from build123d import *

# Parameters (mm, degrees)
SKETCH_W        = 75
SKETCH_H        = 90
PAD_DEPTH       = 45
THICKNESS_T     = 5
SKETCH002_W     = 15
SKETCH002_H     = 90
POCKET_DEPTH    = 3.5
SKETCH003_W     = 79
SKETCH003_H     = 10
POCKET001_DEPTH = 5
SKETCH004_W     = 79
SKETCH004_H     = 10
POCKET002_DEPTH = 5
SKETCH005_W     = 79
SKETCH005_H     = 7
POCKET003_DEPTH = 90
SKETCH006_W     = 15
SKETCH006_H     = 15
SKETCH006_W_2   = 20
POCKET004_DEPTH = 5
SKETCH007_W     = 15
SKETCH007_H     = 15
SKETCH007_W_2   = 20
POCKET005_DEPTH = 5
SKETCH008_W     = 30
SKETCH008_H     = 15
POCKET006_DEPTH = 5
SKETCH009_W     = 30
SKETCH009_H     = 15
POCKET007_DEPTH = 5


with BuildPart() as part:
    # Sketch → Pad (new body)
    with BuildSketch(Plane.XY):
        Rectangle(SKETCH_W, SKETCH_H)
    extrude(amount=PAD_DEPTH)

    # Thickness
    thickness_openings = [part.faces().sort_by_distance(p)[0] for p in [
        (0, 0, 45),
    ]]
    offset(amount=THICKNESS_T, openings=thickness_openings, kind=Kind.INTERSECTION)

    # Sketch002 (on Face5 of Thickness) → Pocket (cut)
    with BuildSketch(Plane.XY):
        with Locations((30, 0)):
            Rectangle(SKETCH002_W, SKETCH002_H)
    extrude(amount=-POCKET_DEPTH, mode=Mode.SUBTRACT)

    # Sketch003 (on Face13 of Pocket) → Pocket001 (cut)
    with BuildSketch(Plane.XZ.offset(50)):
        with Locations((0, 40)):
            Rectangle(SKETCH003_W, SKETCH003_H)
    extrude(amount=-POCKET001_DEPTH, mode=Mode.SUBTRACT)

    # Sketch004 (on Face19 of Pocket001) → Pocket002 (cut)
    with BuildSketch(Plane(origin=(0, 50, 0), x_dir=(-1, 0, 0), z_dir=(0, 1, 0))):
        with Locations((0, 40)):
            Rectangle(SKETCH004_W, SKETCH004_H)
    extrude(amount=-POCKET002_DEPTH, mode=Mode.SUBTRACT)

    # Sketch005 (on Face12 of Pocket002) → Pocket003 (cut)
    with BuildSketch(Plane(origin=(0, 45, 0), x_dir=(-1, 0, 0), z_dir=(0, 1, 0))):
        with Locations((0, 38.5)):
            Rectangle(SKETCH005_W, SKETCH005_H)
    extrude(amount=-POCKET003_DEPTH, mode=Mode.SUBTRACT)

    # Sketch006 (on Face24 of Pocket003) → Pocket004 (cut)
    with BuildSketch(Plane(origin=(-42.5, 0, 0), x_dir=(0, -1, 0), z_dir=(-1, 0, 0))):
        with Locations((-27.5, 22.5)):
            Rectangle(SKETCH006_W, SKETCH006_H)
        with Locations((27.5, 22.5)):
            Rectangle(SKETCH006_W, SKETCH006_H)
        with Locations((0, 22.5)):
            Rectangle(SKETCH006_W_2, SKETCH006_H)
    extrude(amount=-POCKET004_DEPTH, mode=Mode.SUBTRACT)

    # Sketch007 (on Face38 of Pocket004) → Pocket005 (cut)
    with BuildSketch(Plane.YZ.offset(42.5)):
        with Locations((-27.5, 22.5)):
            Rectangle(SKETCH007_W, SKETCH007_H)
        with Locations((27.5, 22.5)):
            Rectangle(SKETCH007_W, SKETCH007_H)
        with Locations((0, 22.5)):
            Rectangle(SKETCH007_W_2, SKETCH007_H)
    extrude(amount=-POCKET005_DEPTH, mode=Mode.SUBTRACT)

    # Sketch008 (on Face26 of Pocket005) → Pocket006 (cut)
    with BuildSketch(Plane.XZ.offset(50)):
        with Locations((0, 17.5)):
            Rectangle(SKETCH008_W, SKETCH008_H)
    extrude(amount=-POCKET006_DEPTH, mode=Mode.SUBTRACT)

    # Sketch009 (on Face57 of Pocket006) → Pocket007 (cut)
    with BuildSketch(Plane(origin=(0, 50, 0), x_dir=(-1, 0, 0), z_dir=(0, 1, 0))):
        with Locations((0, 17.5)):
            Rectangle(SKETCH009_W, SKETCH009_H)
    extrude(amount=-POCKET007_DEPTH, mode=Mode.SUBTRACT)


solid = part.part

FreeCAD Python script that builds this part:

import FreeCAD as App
import Part
import Sketcher

V = App.Vector


def faces_at(feature, points):
    """Names of the faces that lie closest to the given points."""
    faces = feature.Shape.Faces
    near = lambda p: min(range(len(faces)), key=lambda i: faces[i].distToShape(Part.Vertex(*p))[0])
    return sorted({f"Face{near(p) + 1}" for p in points})

doc = App.newDocument("Part")
params = doc.addObject("Spreadsheet::Sheet", "Params")
for row, (alias, value) in enumerate([
    ("sketch1_width", "75 mm"),
    ("sketch1_height", "90 mm"),
    ("pad1_length", "45 mm"),
    ("thickness_wall", "5 mm"),
    ("sketch2_width", "15 mm"),
    ("sketch2_height", "90 mm"),
    ("pocket1_length", "3.5 mm"),
    ("sketch3_width", "79 mm"),
    ("sketch3_height", "10 mm"),
    ("pocket2_length", "5 mm"),
    ("sketch4_width", "79 mm"),
    ("sketch4_height", "10 mm"),
    ("pocket3_length", "5 mm"),
    ("sketch5_width", "79 mm"),
    ("sketch5_height", "7 mm"),
    ("pocket4_length", "90 mm"),
    ("sketch6_width", "15 mm"),
    ("sketch6_width2", "20 mm"),
    ("pocket5_length", "5 mm"),
    ("sketch7_width", "15 mm"),
    ("sketch7_width2", "20 mm"),
    ("pocket6_length", "5 mm"),
    ("sketch8_width", "30 mm"),
    ("sketch8_height", "15 mm"),
    ("pocket7_length", "5 mm"),
    ("sketch9_width", "30 mm"),
    ("sketch9_height", "15 mm"),
    ("pocket8_length", "5 mm"),
], start=1):
    params.set(f"A{row}", alias)
    params.set(f"B{row}", "=" + value)
    params.setAlias(f"B{row}", alias)

body = doc.addObject("PartDesign::Body", "Body")

# Sketch on XY plane
sketch1 = body.newObject("Sketcher::SketchObject", "Sketch")
sketch1.AttachmentSupport = (doc.getObject("XY_Plane"), [""])
sketch1.MapMode = "FlatFace"
sketch1.addGeometry([
    Part.LineSegment(V(-37.5, 45, 0), V(-37.5, -45, 0)),
    Part.LineSegment(V(-37.5, -45, 0), V(37.5, -45, 0)),
    Part.LineSegment(V(37.5, -45, 0), V(37.5, 45, 0)),
    Part.LineSegment(V(37.5, 45, 0), V(-37.5, 45, 0)),
], False)
sketch1.addConstraint([
    Sketcher.Constraint("Coincident", 0, 2, 1, 1),
    Sketcher.Constraint("Coincident", 1, 2, 2, 1),
    Sketcher.Constraint("Coincident", 2, 2, 3, 1),
    Sketcher.Constraint("Coincident", 3, 2, 0, 1),
    Sketcher.Constraint("Vertical", 0),
    Sketcher.Constraint("Horizontal", 1),
    Sketcher.Constraint("Vertical", 2),
    Sketcher.Constraint("Horizontal", 3),
    Sketcher.Constraint("Symmetric", 0, 2, 2, 2, -1, 1),
    Sketcher.Constraint("DistanceX", 1, 1, 1, 2, 75.0),
    Sketcher.Constraint("DistanceY", 0, 2, 0, 1, 90.0),
])
sketch1.setExpression("Constraints[9]", "Params.sketch1_width")
sketch1.setExpression("Constraints[10]", "Params.sketch1_height")
pad1 = body.newObject("PartDesign::Pad", "Pad")
pad1.Profile = sketch1
pad1.setExpression("Length", "Params.pad1_length")
doc.recompute()

thickness = body.newObject("PartDesign::Thickness", "Thickness")
thickness.Base = (pad1, faces_at(pad1, [(0, 0, 45)]))
thickness.setExpression("Value", "Params.thickness_wall")
thickness.Reversed = False
thickness.Join = "Intersection"

# Sketch on XY plane
sketch2 = body.newObject("Sketcher::SketchObject", "Sketch001")
sketch2.AttachmentSupport = (doc.getObject("XY_Plane"), [""])
sketch2.MapMode = "FlatFace"
sketch2.addGeometry([
    Part.LineSegment(V(22.5, 45, 0), V(22.5, -45, 0)),
    Part.LineSegment(V(22.5, -45, 0), V(37.5, -45, 0)),
    Part.LineSegment(V(37.5, -45, 0), V(37.5, 45, 0)),
    Part.LineSegment(V(37.5, 45, 0), V(22.5, 45, 0)),
], False)
sketch2.addConstraint([
    Sketcher.Constraint("Coincident", 0, 2, 1, 1),
    Sketcher.Constraint("Coincident", 1, 2, 2, 1),
    Sketcher.Constraint("Coincident", 2, 2, 3, 1),
    Sketcher.Constraint("Coincident", 3, 2, 0, 1),
    Sketcher.Constraint("Vertical", 0),
    Sketcher.Constraint("Horizontal", 1),
    Sketcher.Constraint("Vertical", 2),
    Sketcher.Constraint("Horizontal", 3),
    Sketcher.Constraint("DistanceX", 1, 1, 1, 2, 15.0),
    Sketcher.Constraint("DistanceY", 0, 2, 0, 1, 90.0),
    Sketcher.Constraint("DistanceY", 0, 2, -1, 1, 45.0),
    Sketcher.Constraint("DistanceX", -1, 1, 0, 2, 22.5),
])
sketch2.setExpression("Constraints[8]", "Params.sketch2_width")
sketch2.setExpression("Constraints[9]", "Params.sketch2_height")
pocket1 = body.newObject("PartDesign::Pocket", "Pocket")
pocket1.Profile = sketch2
pocket1.setExpression("Length", "Params.pocket1_length")

# Sketch on XZ plane
sketch3 = body.newObject("Sketcher::SketchObject", "Sketch002")
sketch3.AttachmentSupport = (doc.getObject("XZ_Plane"), [""])
sketch3.MapMode = "FlatFace"
sketch3.AttachmentOffset = App.Placement(V(0, 0, 50), App.Rotation())
sketch3.addGeometry([
    Part.LineSegment(V(-39.5, 45, 0), V(-39.5, 35, 0)),
    Part.LineSegment(V(-39.5, 35, 0), V(39.5, 35, 0)),
    Part.LineSegment(V(39.5, 35, 0), V(39.5, 45, 0)),
    Part.LineSegment(V(39.5, 45, 0), V(-39.5, 45, 0)),
], False)
sketch3.addConstraint([
    Sketcher.Constraint("Coincident", 0, 2, 1, 1),
    Sketcher.Constraint("Coincident", 1, 2, 2, 1),
    Sketcher.Constraint("Coincident", 2, 2, 3, 1),
    Sketcher.Constraint("Coincident", 3, 2, 0, 1),
    Sketcher.Constraint("Vertical", 0),
    Sketcher.Constraint("Horizontal", 1),
    Sketcher.Constraint("Vertical", 2),
    Sketcher.Constraint("Horizontal", 3),
    Sketcher.Constraint("DistanceX", 1, 1, 1, 2, 79.0),
    Sketcher.Constraint("DistanceY", 0, 2, 0, 1, 10.0),
    Sketcher.Constraint("DistanceY", -1, 1, 0, 2, 35.0),
    Sketcher.Constraint("DistanceX", 0, 2, -1, 1, 39.5),
])
sketch3.setExpression("Constraints[8]", "Params.sketch3_width")
sketch3.setExpression("Constraints[9]", "Params.sketch3_height")
pocket2 = body.newObject("PartDesign::Pocket", "Pocket001")
pocket2.Profile = sketch3
pocket2.setExpression("Length", "Params.pocket2_length")

# Sketch on XZ plane
sketch4 = body.newObject("Sketcher::SketchObject", "Sketch003")
sketch4.AttachmentSupport = (doc.getObject("XZ_Plane"), [""])
sketch4.MapMode = "FlatFace"
sketch4.AttachmentOffset = App.Placement(V(0, 0, -50), App.Rotation())
sketch4.addGeometry([
    Part.LineSegment(V(39.5, 45, 0), V(39.5, 35, 0)),
    Part.LineSegment(V(39.5, 35, 0), V(-39.5, 35, 0)),
    Part.LineSegment(V(-39.5, 35, 0), V(-39.5, 45, 0)),
    Part.LineSegment(V(-39.5, 45, 0), V(39.5, 45, 0)),
], False)
sketch4.addConstraint([
    Sketcher.Constraint("Coincident", 0, 2, 1, 1),
    Sketcher.Constraint("Coincident", 1, 2, 2, 1),
    Sketcher.Constraint("Coincident", 2, 2, 3, 1),
    Sketcher.Constraint("Coincident", 3, 2, 0, 1),
    Sketcher.Constraint("Vertical", 0),
    Sketcher.Constraint("Horizontal", 1),
    Sketcher.Constraint("Vertical", 2),
    Sketcher.Constraint("Horizontal", 3),
    Sketcher.Constraint("DistanceX", 1, 2, 1, 1, 79.0),
    Sketcher.Constraint("DistanceY", 0, 2, 0, 1, 10.0),
    Sketcher.Constraint("DistanceY", -1, 1, 0, 2, 35.0),
    Sketcher.Constraint("DistanceX", -1, 1, 0, 2, 39.5),
])
sketch4.setExpression("Constraints[8]", "Params.sketch4_width")
sketch4.setExpression("Constraints[9]", "Params.sketch4_height")
pocket3 = body.newObject("PartDesign::Pocket", "Pocket002")
pocket3.Profile = sketch4
pocket3.setExpression("Length", "Params.pocket3_length")
pocket3.Reversed = True

# Sketch on XZ plane
sketch5 = body.newObject("Sketcher::SketchObject", "Sketch004")
sketch5.AttachmentSupport = (doc.getObject("XZ_Plane"), [""])
sketch5.MapMode = "FlatFace"
sketch5.AttachmentOffset = App.Placement(V(0, 0, -45), App.Rotation())
sketch5.addGeometry([
    Part.LineSegment(V(39.5, 42, 0), V(39.5, 35, 0)),
    Part.LineSegment(V(39.5, 35, 0), V(-39.5, 35, 0)),
    Part.LineSegment(V(-39.5, 35, 0), V(-39.5, 42, 0)),
    Part.LineSegment(V(-39.5, 42, 0), V(39.5, 42, 0)),
], False)
sketch5.addConstraint([
    Sketcher.Constraint("Coincident", 0, 2, 1, 1),
    Sketcher.Constraint("Coincident", 1, 2, 2, 1),
    Sketcher.Constraint("Coincident", 2, 2, 3, 1),
    Sketcher.Constraint("Coincident", 3, 2, 0, 1),
    Sketcher.Constraint("Vertical", 0),
    Sketcher.Constraint("Horizontal", 1),
    Sketcher.Constraint("Vertical", 2),
    Sketcher.Constraint("Horizontal", 3),
    Sketcher.Constraint("DistanceX", 1, 2, 1, 1, 79.0),
    Sketcher.Constraint("DistanceY", 0, 2, 0, 1, 7.0),
    Sketcher.Constraint("DistanceY", -1, 1, 0, 2, 35.0),
    Sketcher.Constraint("DistanceX", -1, 1, 0, 2, 39.5),
])
sketch5.setExpression("Constraints[8]", "Params.sketch5_width")
sketch5.setExpression("Constraints[9]", "Params.sketch5_height")
pocket4 = body.newObject("PartDesign::Pocket", "Pocket003")
pocket4.Profile = sketch5
pocket4.setExpression("Length", "Params.pocket4_length")
pocket4.Reversed = True

# Sketch on YZ plane
sketch6 = body.newObject("Sketcher::SketchObject", "Sketch005")
sketch6.AttachmentSupport = (doc.getObject("YZ_Plane"), [""])
sketch6.MapMode = "FlatFace"
sketch6.AttachmentOffset = App.Placement(V(0, 0, -42.5), App.Rotation())
sketch6.addGeometry([
    Part.LineSegment(V(35, 30, 0), V(35, 15, 0)),  # 0
    Part.LineSegment(V(35, 15, 0), V(20, 15, 0)),  # 1
    Part.LineSegment(V(20, 15, 0), V(20, 30, 0)),  # 2
    Part.LineSegment(V(20, 30, 0), V(35, 30, 0)),  # 3
    Part.LineSegment(V(-20, 30, 0), V(-20, 15, 0)),  # 4
    Part.LineSegment(V(-20, 15, 0), V(-35, 15, 0)),  # 5
    Part.LineSegment(V(-35, 15, 0), V(-35, 30, 0)),  # 6
    Part.LineSegment(V(-35, 30, 0), V(-20, 30, 0)),  # 7
    Part.LineSegment(V(10, 30, 0), V(10, 15, 0)),  # 8
    Part.LineSegment(V(10, 15, 0), V(-10, 15, 0)),  # 9
    Part.LineSegment(V(-10, 15, 0), V(-10, 30, 0)),  # 10
    Part.LineSegment(V(-10, 30, 0), V(10, 30, 0)),  # 11
], False)
sketch6.addConstraint([
    Sketcher.Constraint("Coincident", 0, 2, 1, 1),
    Sketcher.Constraint("Coincident", 1, 2, 2, 1),
    Sketcher.Constraint("Coincident", 2, 2, 3, 1),
    Sketcher.Constraint("Coincident", 3, 2, 0, 1),
    Sketcher.Constraint("Coincident", 4, 2, 5, 1),
    Sketcher.Constraint("Coincident", 5, 2, 6, 1),
    Sketcher.Constraint("Coincident", 6, 2, 7, 1),
    Sketcher.Constraint("Coincident", 7, 2, 4, 1),
    Sketcher.Constraint("Coincident", 8, 2, 9, 1),
    Sketcher.Constraint("Coincident", 9, 2, 10, 1),
    Sketcher.Constraint("Coincident", 10, 2, 11, 1),
    Sketcher.Constraint("Coincident", 11, 2, 8, 1),
    Sketcher.Constraint("Vertical", 0),
    Sketcher.Constraint("Horizontal", 1),
    Sketcher.Constraint("Vertical", 2),
    Sketcher.Constraint("Horizontal", 3),
    Sketcher.Constraint("Vertical", 4),
    Sketcher.Constraint("Horizontal", 5),
    Sketcher.Constraint("Vertical", 6),
    Sketcher.Constraint("Horizontal", 7),
    Sketcher.Constraint("Vertical", 8),
    Sketcher.Constraint("Horizontal", 9),
    Sketcher.Constraint("Vertical", 10),
    Sketcher.Constraint("Horizontal", 11),
    Sketcher.Constraint("Symmetric", 1, 2, 4, 2, -2),
    Sketcher.Constraint("Symmetric", 3, 2, 6, 2, -2),
    Sketcher.Constraint("Horizontal", 5, 2, 8, 2),
    Sketcher.Constraint("Horizontal", 7, 2, 10, 2),
    Sketcher.Constraint("Equal", 7, 0),
    Sketcher.Constraint("DistanceX", 1, 2, 1, 1, 15.0),
    Sketcher.Constraint("DistanceX", 9, 2, 9, 1, 20.0),
    Sketcher.Constraint("DistanceX", -1, 1, 0, 2, 35.0),
    Sketcher.Constraint("DistanceY", -1, 1, 0, 2, 15.0),
    Sketcher.Constraint("DistanceX", -1, 1, 8, 2, 10.0),
])
sketch6.setExpression("Constraints[29]", "Params.sketch6_width")
sketch6.setExpression("Constraints[30]", "Params.sketch6_width2")
pocket5 = body.newObject("PartDesign::Pocket", "Pocket004")
pocket5.Profile = sketch6
pocket5.setExpression("Length", "Params.pocket5_length")
pocket5.Reversed = True

# Sketch on YZ plane
sketch7 = body.newObject("Sketcher::SketchObject", "Sketch006")
sketch7.AttachmentSupport = (doc.getObject("YZ_Plane"), [""])
sketch7.MapMode = "FlatFace"
sketch7.AttachmentOffset = App.Placement(V(0, 0, 42.5), App.Rotation())
sketch7.addGeometry([
    Part.LineSegment(V(-35, 30, 0), V(-35, 15, 0)),  # 0
    Part.LineSegment(V(-35, 15, 0), V(-20, 15, 0)),  # 1
    Part.LineSegment(V(-20, 15, 0), V(-20, 30, 0)),  # 2
    Part.LineSegment(V(-20, 30, 0), V(-35, 30, 0)),  # 3
    Part.LineSegment(V(20, 30, 0), V(20, 15, 0)),  # 4
    Part.LineSegment(V(20, 15, 0), V(35, 15, 0)),  # 5
    Part.LineSegment(V(35, 15, 0), V(35, 30, 0)),  # 6
    Part.LineSegment(V(35, 30, 0), V(20, 30, 0)),  # 7
    Part.LineSegment(V(-10, 30, 0), V(-10, 15, 0)),  # 8
    Part.LineSegment(V(-10, 15, 0), V(10, 15, 0)),  # 9
    Part.LineSegment(V(10, 15, 0), V(10, 30, 0)),  # 10
    Part.LineSegment(V(10, 30, 0), V(-10, 30, 0)),  # 11
], False)
sketch7.addConstraint([
    Sketcher.Constraint("Coincident", 0, 2, 1, 1),
    Sketcher.Constraint("Coincident", 1, 2, 2, 1),
    Sketcher.Constraint("Coincident", 2, 2, 3, 1),
    Sketcher.Constraint("Coincident", 3, 2, 0, 1),
    Sketcher.Constraint("Coincident", 4, 2, 5, 1),
    Sketcher.Constraint("Coincident", 5, 2, 6, 1),
    Sketcher.Constraint("Coincident", 6, 2, 7, 1),
    Sketcher.Constraint("Coincident", 7, 2, 4, 1),
    Sketcher.Constraint("Coincident", 8, 2, 9, 1),
    Sketcher.Constraint("Coincident", 9, 2, 10, 1),
    Sketcher.Constraint("Coincident", 10, 2, 11, 1),
    Sketcher.Constraint("Coincident", 11, 2, 8, 1),
    Sketcher.Constraint("Vertical", 0),
    Sketcher.Constraint("Horizontal", 1),
    Sketcher.Constraint("Vertical", 2),
    Sketcher.Constraint("Horizontal", 3),
    Sketcher.Constraint("Vertical", 4),
    Sketcher.Constraint("Horizontal", 5),
    Sketcher.Constraint("Vertical", 6),
    Sketcher.Constraint("Horizontal", 7),
    Sketcher.Constraint("Vertical", 8),
    Sketcher.Constraint("Horizontal", 9),
    Sketcher.Constraint("Vertical", 10),
    Sketcher.Constraint("Horizontal", 11),
    Sketcher.Constraint("Symmetric", 1, 2, 4, 2, -2),
    Sketcher.Constraint("Symmetric", 3, 2, 6, 2, -2),
    Sketcher.Constraint("Horizontal", 5, 2, 8, 2),
    Sketcher.Constraint("Horizontal", 7, 2, 10, 2),
    Sketcher.Constraint("Equal", 7, 0),
    Sketcher.Constraint("DistanceX", 1, 1, 1, 2, 15.0),
    Sketcher.Constraint("DistanceX", 9, 1, 9, 2, 20.0),
    Sketcher.Constraint("DistanceX", 0, 2, -1, 1, 35.0),
    Sketcher.Constraint("DistanceY", -1, 1, 0, 2, 15.0),
    Sketcher.Constraint("DistanceX", 8, 2, -1, 1, 10.0),
])
sketch7.setExpression("Constraints[29]", "Params.sketch7_width")
sketch7.setExpression("Constraints[30]", "Params.sketch7_width2")
pocket6 = body.newObject("PartDesign::Pocket", "Pocket005")
pocket6.Profile = sketch7
pocket6.setExpression("Length", "Params.pocket6_length")

# Sketch on XZ plane
sketch8 = body.newObject("Sketcher::SketchObject", "Sketch007")
sketch8.AttachmentSupport = (doc.getObject("XZ_Plane"), [""])
sketch8.MapMode = "FlatFace"
sketch8.AttachmentOffset = App.Placement(V(0, 0, 50), App.Rotation())
sketch8.addGeometry([
    Part.LineSegment(V(-15, 25, 0), V(-15, 10, 0)),
    Part.LineSegment(V(-15, 10, 0), V(15, 10, 0)),
    Part.LineSegment(V(15, 10, 0), V(15, 25, 0)),
    Part.LineSegment(V(15, 25, 0), V(-15, 25, 0)),
], False)
sketch8.addConstraint([
    Sketcher.Constraint("Coincident", 0, 2, 1, 1),
    Sketcher.Constraint("Coincident", 1, 2, 2, 1),
    Sketcher.Constraint("Coincident", 2, 2, 3, 1),
    Sketcher.Constraint("Coincident", 3, 2, 0, 1),
    Sketcher.Constraint("Vertical", 0),
    Sketcher.Constraint("Horizontal", 1),
    Sketcher.Constraint("Vertical", 2),
    Sketcher.Constraint("Horizontal", 3),
    Sketcher.Constraint("DistanceX", 1, 1, 1, 2, 30.0),
    Sketcher.Constraint("DistanceY", 0, 2, 0, 1, 15.0),
    Sketcher.Constraint("DistanceX", 0, 2, -1, 1, 15.0),
    Sketcher.Constraint("DistanceY", -1, 1, 0, 2, 10.0),
])
sketch8.setExpression("Constraints[8]", "Params.sketch8_width")
sketch8.setExpression("Constraints[9]", "Params.sketch8_height")
pocket7 = body.newObject("PartDesign::Pocket", "Pocket006")
pocket7.Profile = sketch8
pocket7.setExpression("Length", "Params.pocket7_length")

# Sketch on XZ plane
sketch9 = body.newObject("Sketcher::SketchObject", "Sketch008")
sketch9.AttachmentSupport = (doc.getObject("XZ_Plane"), [""])
sketch9.MapMode = "FlatFace"
sketch9.AttachmentOffset = App.Placement(V(0, 0, -50), App.Rotation())
sketch9.addGeometry([
    Part.LineSegment(V(15, 25, 0), V(15, 10, 0)),
    Part.LineSegment(V(15, 10, 0), V(-15, 10, 0)),
    Part.LineSegment(V(-15, 10, 0), V(-15, 25, 0)),
    Part.LineSegment(V(-15, 25, 0), V(15, 25, 0)),
], False)
sketch9.addConstraint([
    Sketcher.Constraint("Coincident", 0, 2, 1, 1),
    Sketcher.Constraint("Coincident", 1, 2, 2, 1),
    Sketcher.Constraint("Coincident", 2, 2, 3, 1),
    Sketcher.Constraint("Coincident", 3, 2, 0, 1),
    Sketcher.Constraint("Vertical", 0),
    Sketcher.Constraint("Horizontal", 1),
    Sketcher.Constraint("Vertical", 2),
    Sketcher.Constraint("Horizontal", 3),
    Sketcher.Constraint("DistanceX", 1, 2, 1, 1, 30.0),
    Sketcher.Constraint("DistanceY", 0, 2, 0, 1, 15.0),
    Sketcher.Constraint("DistanceX", -1, 1, 0, 2, 15.0),
    Sketcher.Constraint("DistanceY", -1, 1, 0, 2, 10.0),
])
sketch9.setExpression("Constraints[8]", "Params.sketch9_width")
sketch9.setExpression("Constraints[9]", "Params.sketch9_height")
pocket8 = body.newObject("PartDesign::Pocket", "Pocket007")
pocket8.Profile = sketch9
pocket8.setExpression("Length", "Params.pocket8_length")
pocket8.Reversed = True

doc.recompute()
